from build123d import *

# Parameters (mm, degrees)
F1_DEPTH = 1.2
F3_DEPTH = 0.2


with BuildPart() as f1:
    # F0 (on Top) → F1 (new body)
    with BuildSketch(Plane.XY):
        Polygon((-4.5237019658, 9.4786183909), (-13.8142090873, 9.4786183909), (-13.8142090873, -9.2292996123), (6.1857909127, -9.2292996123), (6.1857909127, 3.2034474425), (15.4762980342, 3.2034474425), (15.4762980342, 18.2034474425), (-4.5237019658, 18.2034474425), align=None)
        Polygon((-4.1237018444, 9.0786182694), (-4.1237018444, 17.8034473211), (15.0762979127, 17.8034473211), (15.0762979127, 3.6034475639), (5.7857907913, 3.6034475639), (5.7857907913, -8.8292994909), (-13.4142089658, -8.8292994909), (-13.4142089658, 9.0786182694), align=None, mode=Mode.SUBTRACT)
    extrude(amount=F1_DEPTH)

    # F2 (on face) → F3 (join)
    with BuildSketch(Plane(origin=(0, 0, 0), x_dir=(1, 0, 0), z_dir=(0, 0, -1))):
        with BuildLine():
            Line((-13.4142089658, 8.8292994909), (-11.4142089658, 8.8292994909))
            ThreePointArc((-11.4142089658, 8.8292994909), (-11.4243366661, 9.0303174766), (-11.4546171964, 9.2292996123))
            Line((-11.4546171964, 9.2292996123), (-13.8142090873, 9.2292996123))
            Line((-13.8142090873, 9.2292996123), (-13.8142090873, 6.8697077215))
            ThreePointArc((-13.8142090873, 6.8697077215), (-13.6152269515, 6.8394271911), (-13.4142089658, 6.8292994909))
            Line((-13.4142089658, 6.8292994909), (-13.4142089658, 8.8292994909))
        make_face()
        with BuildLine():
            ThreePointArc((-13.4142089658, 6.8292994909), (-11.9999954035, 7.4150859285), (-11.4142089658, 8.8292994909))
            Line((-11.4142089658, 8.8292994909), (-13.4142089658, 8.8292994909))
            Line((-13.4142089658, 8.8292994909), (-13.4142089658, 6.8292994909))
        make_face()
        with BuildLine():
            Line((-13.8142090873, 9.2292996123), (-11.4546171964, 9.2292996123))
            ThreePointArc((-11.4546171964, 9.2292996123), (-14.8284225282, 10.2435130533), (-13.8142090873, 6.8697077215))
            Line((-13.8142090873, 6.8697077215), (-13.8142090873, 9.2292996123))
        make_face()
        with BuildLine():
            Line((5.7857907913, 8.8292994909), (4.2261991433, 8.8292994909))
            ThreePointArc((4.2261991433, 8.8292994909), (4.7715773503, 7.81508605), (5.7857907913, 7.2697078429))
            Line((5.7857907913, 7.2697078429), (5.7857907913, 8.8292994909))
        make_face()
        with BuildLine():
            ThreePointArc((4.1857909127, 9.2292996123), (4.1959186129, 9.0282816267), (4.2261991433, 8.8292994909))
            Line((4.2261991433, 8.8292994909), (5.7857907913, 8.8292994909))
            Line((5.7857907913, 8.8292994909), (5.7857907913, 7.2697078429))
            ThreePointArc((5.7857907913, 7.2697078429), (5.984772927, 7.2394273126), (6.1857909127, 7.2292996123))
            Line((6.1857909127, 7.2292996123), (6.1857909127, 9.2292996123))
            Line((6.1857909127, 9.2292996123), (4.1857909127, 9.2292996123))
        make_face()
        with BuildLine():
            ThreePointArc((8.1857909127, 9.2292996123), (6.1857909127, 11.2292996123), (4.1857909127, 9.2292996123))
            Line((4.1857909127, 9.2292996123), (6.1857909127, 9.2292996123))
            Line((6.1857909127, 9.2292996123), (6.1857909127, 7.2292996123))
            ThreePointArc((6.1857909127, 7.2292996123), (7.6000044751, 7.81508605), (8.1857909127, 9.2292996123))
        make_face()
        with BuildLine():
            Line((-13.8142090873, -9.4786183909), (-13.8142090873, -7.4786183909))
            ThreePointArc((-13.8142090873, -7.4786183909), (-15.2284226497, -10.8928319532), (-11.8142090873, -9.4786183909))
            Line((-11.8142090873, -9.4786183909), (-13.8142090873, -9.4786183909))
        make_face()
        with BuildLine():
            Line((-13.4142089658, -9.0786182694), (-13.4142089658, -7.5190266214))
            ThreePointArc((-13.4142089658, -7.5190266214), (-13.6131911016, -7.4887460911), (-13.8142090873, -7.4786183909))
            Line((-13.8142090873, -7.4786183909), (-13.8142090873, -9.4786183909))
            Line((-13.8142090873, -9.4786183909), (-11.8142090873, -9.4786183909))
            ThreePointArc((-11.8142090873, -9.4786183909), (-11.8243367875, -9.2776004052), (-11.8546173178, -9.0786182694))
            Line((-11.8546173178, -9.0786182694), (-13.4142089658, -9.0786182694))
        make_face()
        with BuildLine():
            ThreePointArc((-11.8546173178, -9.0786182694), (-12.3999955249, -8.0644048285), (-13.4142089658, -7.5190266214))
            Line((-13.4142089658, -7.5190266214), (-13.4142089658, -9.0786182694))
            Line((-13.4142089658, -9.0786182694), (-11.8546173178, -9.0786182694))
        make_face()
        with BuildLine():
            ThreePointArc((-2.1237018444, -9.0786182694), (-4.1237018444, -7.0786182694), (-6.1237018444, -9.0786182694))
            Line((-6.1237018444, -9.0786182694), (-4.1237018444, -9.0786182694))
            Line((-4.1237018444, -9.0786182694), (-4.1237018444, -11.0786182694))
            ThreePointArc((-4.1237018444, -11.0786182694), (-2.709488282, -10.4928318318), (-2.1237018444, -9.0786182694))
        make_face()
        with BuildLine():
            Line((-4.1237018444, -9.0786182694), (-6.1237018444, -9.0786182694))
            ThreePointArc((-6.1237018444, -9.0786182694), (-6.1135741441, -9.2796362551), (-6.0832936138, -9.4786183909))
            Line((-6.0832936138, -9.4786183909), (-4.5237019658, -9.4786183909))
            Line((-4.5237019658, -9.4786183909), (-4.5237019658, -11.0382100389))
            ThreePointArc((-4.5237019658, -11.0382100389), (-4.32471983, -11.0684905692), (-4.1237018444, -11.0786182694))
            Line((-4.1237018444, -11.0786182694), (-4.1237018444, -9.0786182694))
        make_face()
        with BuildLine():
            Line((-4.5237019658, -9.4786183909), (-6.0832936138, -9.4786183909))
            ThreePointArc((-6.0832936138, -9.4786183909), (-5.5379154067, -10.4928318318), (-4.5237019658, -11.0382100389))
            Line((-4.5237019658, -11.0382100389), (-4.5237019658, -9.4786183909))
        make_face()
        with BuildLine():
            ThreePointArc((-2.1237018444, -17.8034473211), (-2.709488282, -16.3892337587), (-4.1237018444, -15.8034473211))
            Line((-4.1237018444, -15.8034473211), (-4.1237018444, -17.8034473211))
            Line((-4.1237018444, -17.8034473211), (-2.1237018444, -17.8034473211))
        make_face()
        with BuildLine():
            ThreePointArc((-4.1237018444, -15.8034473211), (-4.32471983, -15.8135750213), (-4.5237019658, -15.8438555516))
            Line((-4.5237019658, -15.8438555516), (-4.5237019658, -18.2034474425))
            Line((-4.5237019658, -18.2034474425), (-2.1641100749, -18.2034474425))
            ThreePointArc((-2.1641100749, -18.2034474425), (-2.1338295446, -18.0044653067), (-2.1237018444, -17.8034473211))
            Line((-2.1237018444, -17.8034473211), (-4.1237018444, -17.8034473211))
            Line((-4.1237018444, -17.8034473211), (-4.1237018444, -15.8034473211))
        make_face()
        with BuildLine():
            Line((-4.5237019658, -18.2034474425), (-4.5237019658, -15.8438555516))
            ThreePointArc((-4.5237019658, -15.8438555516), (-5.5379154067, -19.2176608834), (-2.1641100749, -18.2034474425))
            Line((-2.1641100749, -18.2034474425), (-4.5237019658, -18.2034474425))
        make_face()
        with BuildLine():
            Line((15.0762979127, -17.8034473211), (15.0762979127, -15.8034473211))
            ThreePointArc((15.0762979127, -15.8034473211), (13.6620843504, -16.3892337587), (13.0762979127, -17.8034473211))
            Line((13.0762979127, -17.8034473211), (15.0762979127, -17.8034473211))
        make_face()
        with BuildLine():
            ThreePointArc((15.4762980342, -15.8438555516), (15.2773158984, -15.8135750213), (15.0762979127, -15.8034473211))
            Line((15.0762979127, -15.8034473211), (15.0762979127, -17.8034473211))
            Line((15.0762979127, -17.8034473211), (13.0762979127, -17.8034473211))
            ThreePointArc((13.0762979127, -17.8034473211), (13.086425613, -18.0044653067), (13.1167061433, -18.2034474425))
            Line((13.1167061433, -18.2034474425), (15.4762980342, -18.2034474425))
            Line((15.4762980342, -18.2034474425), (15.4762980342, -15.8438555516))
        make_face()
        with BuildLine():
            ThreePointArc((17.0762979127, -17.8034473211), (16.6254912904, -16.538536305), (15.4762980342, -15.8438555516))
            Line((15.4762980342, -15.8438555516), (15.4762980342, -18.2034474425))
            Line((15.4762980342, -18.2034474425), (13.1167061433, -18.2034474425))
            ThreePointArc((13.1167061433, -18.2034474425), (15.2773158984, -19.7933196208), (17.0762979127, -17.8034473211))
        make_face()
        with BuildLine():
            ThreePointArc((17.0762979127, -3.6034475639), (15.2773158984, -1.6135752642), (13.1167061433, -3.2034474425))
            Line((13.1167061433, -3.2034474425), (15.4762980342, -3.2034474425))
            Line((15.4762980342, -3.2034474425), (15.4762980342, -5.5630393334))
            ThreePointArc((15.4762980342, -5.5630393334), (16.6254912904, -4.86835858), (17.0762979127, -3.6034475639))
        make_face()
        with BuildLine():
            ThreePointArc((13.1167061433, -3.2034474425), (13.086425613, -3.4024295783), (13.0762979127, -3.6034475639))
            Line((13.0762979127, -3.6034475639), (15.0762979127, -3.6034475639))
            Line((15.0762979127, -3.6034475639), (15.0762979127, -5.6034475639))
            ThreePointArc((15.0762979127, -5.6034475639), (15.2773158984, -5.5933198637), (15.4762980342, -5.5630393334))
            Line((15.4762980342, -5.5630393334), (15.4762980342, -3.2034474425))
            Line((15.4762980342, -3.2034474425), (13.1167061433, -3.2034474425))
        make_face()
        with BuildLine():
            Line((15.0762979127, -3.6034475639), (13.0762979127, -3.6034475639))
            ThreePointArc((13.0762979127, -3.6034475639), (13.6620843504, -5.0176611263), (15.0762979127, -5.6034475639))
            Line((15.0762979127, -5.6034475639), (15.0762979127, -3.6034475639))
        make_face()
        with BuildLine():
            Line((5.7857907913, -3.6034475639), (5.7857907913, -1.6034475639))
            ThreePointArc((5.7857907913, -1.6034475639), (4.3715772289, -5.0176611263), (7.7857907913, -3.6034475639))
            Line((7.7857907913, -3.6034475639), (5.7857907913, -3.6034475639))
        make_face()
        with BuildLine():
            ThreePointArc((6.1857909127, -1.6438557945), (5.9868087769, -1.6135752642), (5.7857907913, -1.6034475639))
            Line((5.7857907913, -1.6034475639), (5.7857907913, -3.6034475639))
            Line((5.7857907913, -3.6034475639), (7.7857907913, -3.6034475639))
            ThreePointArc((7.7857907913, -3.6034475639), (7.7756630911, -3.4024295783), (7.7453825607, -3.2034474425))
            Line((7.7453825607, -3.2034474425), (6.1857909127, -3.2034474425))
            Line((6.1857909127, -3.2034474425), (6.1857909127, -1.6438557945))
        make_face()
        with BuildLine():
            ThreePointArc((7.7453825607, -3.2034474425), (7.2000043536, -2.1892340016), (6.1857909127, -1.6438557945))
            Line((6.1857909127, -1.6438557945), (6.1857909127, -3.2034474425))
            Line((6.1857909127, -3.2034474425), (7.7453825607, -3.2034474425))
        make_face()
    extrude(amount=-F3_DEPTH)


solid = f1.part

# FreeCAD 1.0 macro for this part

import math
import FreeCAD as App
import Part
import Sketcher

V = App.Vector
Q = App.Units.Quantity

doc = App.newDocument("Part")
params = doc.addObject("Spreadsheet::Sheet", "Params")
for row, (alias, value) in enumerate([
    ("sketch1_width", "20 mm"),
    ("sketch1_height", "15 mm"),
    ("sketch1_width2", "19.2 mm"),
    ("sketch1_height2", "14.2 mm"),
    ("pad1_length", "1.2 mm"),
    ("sketch2_radius", "2 mm"),
    ("pad2_length", "0.2 mm"),
], start=1):
    params.set(f"A{row}", alias)
    params.set(f"B{row}", "=" + value)
    params.setAlias(f"B{row}", alias)

body = doc.addObject("PartDesign::Body", "Body")

sketch1 = body.newObject("Sketcher::SketchObject", "Sketch")
sketch1.AttachmentSupport = (doc.getObject("XY_Plane"), [""])
sketch1.MapMode = "FlatFace"
sketch1.addGeometry([
    Part.LineSegment(V(-5, 9, 0), V(-14, 9, 0)),
    Part.LineSegment(V(-14, 9, 0), V(-14, -9, 0)),
    Part.LineSegment(V(-14, -9, 0), V(6, -9, 0)),
    Part.LineSegment(V(6, -9, 0), V(6, 3, 0)),
    Part.LineSegment(V(6, 3, 0), V(15, 3, 0)),
    Part.LineSegment(V(15, 3, 0), V(15, 18, 0)),
    Part.LineSegment(V(15, 18, 0), V(-5, 18, 0)),
    Part.LineSegment(V(-5, 18, 0), V(-5, 9, 0)),
    Part.LineSegment(V(-13, 9, 0), V(-4, 9, 0)),
    Part.LineSegment(V(-4, 9, 0), V(-4, 18, 0)),
    Part.LineSegment(V(-4, 18, 0), V(15, 18, 0)),
    Part.LineSegment(V(15, 18, 0), V(15, 4, 0)),
    Part.LineSegment(V(15, 4, 0), V(6, 4, 0)),
    Part.LineSegment(V(6, 4, 0), V(6, -9, 0)),
    Part.LineSegment(V(6, -9, 0), V(-13, -9, 0)),
    Part.LineSegment(V(-13, -9, 0), V(-13, 9, 0)),
], False)
sketch1.addConstraint([
    Sketcher.Constraint("Coincident", 0, 2, 1, 1),
    Sketcher.Constraint("Coincident", 1, 2, 2, 1),
    Sketcher.Constraint("Coincident", 2, 2, 3, 1),
    Sketcher.Constraint("Coincident", 3, 2, 4, 1),
    Sketcher.Constraint("Coincident", 4, 2, 5, 1),
    Sketcher.Constraint("Coincident", 5, 2, 6, 1),
    Sketcher.Constraint("Coincident", 6, 2, 7, 1),
    Sketcher.Constraint("Coincident", 7, 2, 0, 1),
    Sketcher.Constraint("Coincident", 8, 2, 9, 1),
    Sketcher.Constraint("Coincident", 9, 2, 10, 1),
    Sketcher.Constraint("Coincident", 10, 2, 11, 1),
    Sketcher.Constraint("Coincident", 11, 2, 12, 1),
    Sketcher.Constraint("Coincident", 12, 2, 13, 1),
    Sketcher.Constraint("Coincident", 13, 2, 14, 1),
    Sketcher.Constraint("Coincident", 14, 2, 15, 1),
    Sketcher.Constraint("Coincident", 15, 2, 8, 1),
    Sketcher.Constraint("Horizontal", 0),
    Sketcher.Constraint("Vertical", 1),
    Sketcher.Constraint("Horizontal", 2),
    Sketcher.Constraint("Vertical", 3),
    Sketcher.Constraint("Horizontal", 4),
    Sketcher.Constraint("Vertical", 5),
    Sketcher.Constraint("Horizontal", 6),
    Sketcher.Constraint("Vertical", 7),
    Sketcher.Constraint("Horizontal", 8),
    Sketcher.Constraint("Vertical", 9),
    Sketcher.Constraint("Horizontal", 10),
    Sketcher.Constraint("Vertical", 11),
    Sketcher.Constraint("Horizontal", 12),
    Sketcher.Constraint("Vertical", 13),
    Sketcher.Constraint("Horizontal", 14),
    Sketcher.Constraint("Vertical", 15),
    Sketcher.Constraint("Equal", 0, 4),
    Sketcher.Constraint("Equal", 4, 8),
    Sketcher.Constraint("Equal", 8, 12),
    Sketcher.Constraint("Equal", 7, 9),
    Sketcher.Constraint("Equal", 3, 13),
    Sketcher.Constraint("DistanceX", 2, 1, 2, 2, Q("20 mm")),
    Sketcher.Constraint("DistanceY", 5, 1, 5, 2, Q("15 mm")),
    Sketcher.Constraint("DistanceX", 10, 1, 10, 2, Q("19.2 mm")),
    Sketcher.Constraint("DistanceY", 11, 2, 11, 1, Q("14.2 mm")),
    Sketcher.Constraint("DistanceX", 7, 2, 8, 2, Q("0.4 mm")),
    Sketcher.Constraint("DistanceY", 8, 2, 7, 2, Q("0.4 mm")),
    Sketcher.Constraint("DistanceY", 1, 2, 1, 1, Q("18.707918 mm")),
    Sketcher.Constraint("DistanceY", 7, 2, 7, 1, Q("8.724829 mm")),
    Sketcher.Constraint("DistanceY", 1, 2, -1, 1, Q("9.2293 mm")),
    Sketcher.Constraint("DistanceX", -1, 1, 4, 2, Q("15.476298 mm")),
    Sketcher.Constraint("DistanceX", 0, 2, 0, 1, Q("9.290507 mm")),
])
sketch1.setExpression("Constraints[37]", "Params.sketch1_width")
sketch1.setExpression("Constraints[38]", "Params.sketch1_height")
sketch1.setExpression("Constraints[39]", "Params.sketch1_width2")
sketch1.setExpression("Constraints[40]", "Params.sketch1_height2")
pad1 = body.newObject("PartDesign::Pad", "Pad")
pad1.Profile = sketch1
pad1.setExpression("Length", "Params.pad1_length")

sketch2 = body.newObject("Sketcher::SketchObject", "Sketch001")
sketch2.AttachmentSupport = (doc.getObject("XY_Plane"), [""])
sketch2.MapMode = "FlatFace"
sketch2.addGeometry([
    Part.ArcOfCircle(Part.Circle(V(-13.41, -8.83, 0), V(0, 0, 1), 2), math.radians(-11.54), math.radians(0)),
    Part.ArcOfCircle(Part.Circle(V(-13.41, -8.83, 0), V(0, 0, 1), 2), math.radians(102), math.radians(348)),
    Part.ArcOfCircle(Part.Circle(V(-13.41, -8.83, 0), V(0, 0, 1), 2), math.radians(90), math.radians(101.54)),
    Part.ArcOfCircle(Part.Circle(V(-13.41, -8.83, 0), V(0, 0, 1), 2), math.radians(0), math.radians(90)),
    Part.ArcOfCircle(Part.Circle(V(6.19, -9.23, 0), V(0, 0, 1), 2), math.radians(102), math.radians(168)),
    Part.ArcOfCircle(Part.Circle(V(6.19, -9.23, 0), V(0, 0, 1), 2), math.radians(90), math.radians(101.54)),
    Part.ArcOfCircle(Part.Circle(V(6.19, -9.23, 0), V(0, 0, 1), 2), math.radians(0), math.radians(90)),
    Part.ArcOfCircle(Part.Circle(V(6.19, -9.23, 0), V(0, 0, 1), 2), math.radians(180), math.radians(360)),
    Part.ArcOfCircle(Part.Circle(V(6.19, -9.23, 0), V(0, 0, 1), 2), math.radians(168.46), math.radians(180)),
    Part.ArcOfCircle(Part.Circle(V(-13.81, 9.48, 0), V(0, 0, 1), 2), math.radians(0), math.radians(270)),
    Part.ArcOfCircle(Part.Circle(V(-13.81, 9.48, 0), V(0, 0, 1), 2), math.radians(-11.54), math.radians(0)),
    Part.ArcOfCircle(Part.Circle(V(-13.81, 9.48, 0), V(0, 0, 1), 2), math.radians(-78), math.radians(-12)),
    Part.ArcOfCircle(Part.Circle(V(-13.81, 9.48, 0), V(0, 0, 1), 2), math.radians(-90), math.radians(-78.46)),
    Part.ArcOfCircle(Part.Circle(V(-4.12, 9.08, 0), V(0, 0, 1), 2), math.radians(180), math.radians(360)),
    Part.ArcOfCircle(Part.Circle(V(-4.12, 9.08, 0), V(0, 0, 1), 2), math.radians(168.46), math.radians(180)),
    Part.ArcOfCircle(Part.Circle(V(-4.12, 9.08, 0), V(0, 0, 1), 2), math.radians(102), math.radians(168)),
    Part.ArcOfCircle(Part.Circle(V(-4.12, 9.08, 0), V(0, 0, 1), 2), math.radians(90), math.radians(101.54)),
    Part.ArcOfCircle(Part.Circle(V(-4.12, 9.08, 0), V(0, 0, 1), 2), math.radians(0), math.radians(90)),
    Part.ArcOfCircle(Part.Circle(V(-4.12, 17.8, 0), V(0, 0, 1), 2), math.radians(-90), math.radians(0)),
    Part.ArcOfCircle(Part.Circle(V(-4.12, 17.8, 0), V(0, 0, 1), 2), math.radians(-101.54), math.radians(-90)),
    Part.ArcOfCircle(Part.Circle(V(-4.12, 17.8, 0), V(0, 0, 1), 2), math.radians(12), math.radians(258)),
    Part.ArcOfCircle(Part.Circle(V(-4.12, 17.8, 0), V(0, 0, 1), 2), math.radians(0), math.radians(11.54)),
    Part.ArcOfCircle(Part.Circle(V(15.08, 17.8, 0), V(0, 0, 1), 2), math.radians(180), math.radians(270)),
    Part.ArcOfCircle(Part.Circle(V(15.08, 17.8, 0), V(0, 0, 1), 2), math.radians(168.46), math.radians(180)),
    Part.ArcOfCircle(Part.Circle(V(15.08, 17.8, 0), V(0, 0, 1), 2), math.radians(0), math.radians(168)),
    Part.ArcOfCircle(Part.Circle(V(15.08, 17.8, 0), V(0, 0, 1), 2), math.radians(-78), math.radians(0)),
    Part.ArcOfCircle(Part.Circle(V(15.08, 17.8, 0), V(0, 0, 1), 2), math.radians(-90), math.radians(-78.46)),
    Part.ArcOfCircle(Part.Circle(V(15.08, 3.6, 0), V(0, 0, 1), 2), math.radians(-168), math.radians(0)),
    Part.ArcOfCircle(Part.Circle(V(15.08, 3.6, 0), V(0, 0, 1), 2), math.radians(-180), math.radians(-168.46)),
    Part.ArcOfCircle(Part.Circle(V(15.08, 3.6, 0), V(0, 0, 1), 2), math.radians(90), math.radians(180)),
    Part.ArcOfCircle(Part.Circle(V(15.08, 3.6, 0), V(0, 0, 1), 2), math.radians(78.46), math.radians(90)),
    Part.ArcOfCircle(Part.Circle(V(15.08, 3.6, 0), V(0, 0, 1), 2), math.radians(0), math.radians(78)),
    Part.ArcOfCircle(Part.Circle(V(5.79, 3.6, 0), V(0, 0, 1), 2), math.radians(0), math.radians(270)),
    Part.ArcOfCircle(Part.Circle(V(5.79, 3.6, 0), V(0, 0, 1), 2), math.radians(-11.54), math.radians(0)),
    Part.ArcOfCircle(Part.Circle(V(5.79, 3.6, 0), V(0, 0, 1), 2), math.radians(-78), math.radians(-12)),
    Part.ArcOfCircle(Part.Circle(V(5.79, 3.6, 0), V(0, 0, 1), 2), math.radians(-90), math.radians(-78.46)),
], False)
sketch2.addConstraint([
    Sketcher.Constraint("Tangent", 0, 1, 1, 2),
    Sketcher.Constraint("Tangent", 1, 1, 2, 2),
    Sketcher.Constraint("Tangent", 2, 1, 3, 2),
    Sketcher.Constraint("Tangent", 3, 1, 0, 2),
    Sketcher.Constraint("Tangent", 4, 1, 5, 2),
    Sketcher.Constraint("Tangent", 5, 1, 6, 2),
    Sketcher.Constraint("Tangent", 6, 1, 7, 2),
    Sketcher.Constraint("Tangent", 7, 1, 8, 2),
    Sketcher.Constraint("Tangent", 8, 1, 4, 2),
    Sketcher.Constraint("Tangent", 9, 1, 10, 2),
    Sketcher.Constraint("Tangent", 10, 1, 11, 2),
    Sketcher.Constraint("Tangent", 11, 1, 12, 2),
    Sketcher.Constraint("Tangent", 12, 1, 9, 2),
    Sketcher.Constraint("Tangent", 13, 1, 14, 2),
    Sketcher.Constraint("Tangent", 14, 1, 15, 2),
    Sketcher.Constraint("Tangent", 15, 1, 16, 2),
    Sketcher.Constraint("Tangent", 16, 1, 17, 2),
    Sketcher.Constraint("Tangent", 17, 1, 13, 2),
    Sketcher.Constraint("Tangent", 18, 1, 19, 2),
    Sketcher.Constraint("Tangent", 19, 1, 20, 2),
    Sketcher.Constraint("Tangent", 20, 1, 21, 2),
    Sketcher.Constraint("Tangent", 21, 1, 18, 2),
    Sketcher.Constraint("Tangent", 22, 1, 23, 2),
    Sketcher.Constraint("Tangent", 23, 1, 24, 2),
    Sketcher.Constraint("Tangent", 24, 1, 25, 2),
    Sketcher.Constraint("Tangent", 25, 1, 26, 2),
    Sketcher.Constraint("Tangent", 26, 1, 22, 2),
    Sketcher.Constraint("Tangent", 27, 1, 28, 2),
    Sketcher.Constraint("Tangent", 28, 1, 29, 2),
    Sketcher.Constraint("Tangent", 29, 1, 30, 2),
    Sketcher.Constraint("Tangent", 30, 1, 31, 2),
    Sketcher.Constraint("Tangent", 31, 1, 27, 2),
    Sketcher.Constraint("Tangent", 32, 1, 33, 2),
    Sketcher.Constraint("Tangent", 33, 1, 34, 2),
    Sketcher.Constraint("Tangent", 34, 1, 35, 2),
    Sketcher.Constraint("Tangent", 35, 1, 32, 2),
    Sketcher.Constraint("Coincident", 6, 3, 4, 3),
    Sketcher.Constraint("Coincident", 15, 3, 13, 3),
    Sketcher.Constraint("Coincident", 24, 3, 22, 3),
    Sketcher.Constraint("Coincident", 29, 3, 27, 3),
    Sketcher.Constraint("Equal", 0, 1),
    Sketcher.Constraint("Equal", 3, 4),
    Sketcher.Constraint("Equal", 8, 9),
    Sketcher.Constraint("Equal", 9, 10),
    Sketcher.Constraint("Equal", 12, 13),
    Sketcher.Constraint("Equal", 17, 18),
    Sketcher.Constraint("Equal", 18, 19),
    Sketcher.Constraint("Equal", 21, 22),
    Sketcher.Constraint("Equal", 26, 27),
    Sketcher.Constraint("Equal", 31, 32),
    Sketcher.Constraint("Equal", 32, 33),
    Sketcher.Constraint("Horizontal", 21, 3, 22, 3),
    Sketcher.Constraint("Horizontal", 31, 3, 32, 3),
    Sketcher.Constraint("Horizontal", 8, 3, 0, 1),
    Sketcher.Constraint("Horizontal", 2, 3, 3, 1),
    Sketcher.Constraint("Horizontal", 0, 1, 6, 1),
    Sketcher.Constraint("Horizontal", 6, 1, 7, 1),
    Sketcher.Constraint("Horizontal", 3, 1, 8, 1),
    Sketcher.Constraint("Horizontal", 12, 3, 9, 1),
    Sketcher.Constraint("Horizontal", 17, 3, 10, 1),
    Sketcher.Constraint("Horizontal", 10, 1, 13, 1),
    Sketcher.Constraint("Horizontal", 9, 1, 14, 1),
    Sketcher.Constraint("Horizontal", 13, 1, 17, 1),
    Sketcher.Constraint("Horizontal", 26, 3, 21, 1),
    Sketcher.Constraint("Horizontal", 21, 1, 22, 1),
    Sketcher.Constraint("Horizontal", 20, 1, 23, 1),
    Sketcher.Constraint("Horizontal", 22, 1, 24, 1),
    Sketcher.Constraint("Horizontal", 19, 1, 25, 1),
    Sketcher.Constraint("Horizontal", 35, 3, 28, 1),
    Sketcher.Constraint("Horizontal", 28, 1, 31, 1),
    Sketcher.Constraint("Horizontal", 31, 1, 32, 1),
    Sketcher.Constraint("Horizontal", 27, 1, 33, 1),
    Sketcher.Constraint("Vertical", 17, 3, 18, 3),
    Sketcher.Constraint("Vertical", 26, 3, 27, 3),
    Sketcher.Constraint("Vertical", 12, 3, 1, 1),
    Sketcher.Constraint("Vertical", 3, 3, 2, 1),
    Sketcher.Constraint("Vertical", 35, 3, 4, 1),
    Sketcher.Constraint("Vertical", 8, 3, 5, 1),
    Sketcher.Constraint("Vertical", 2, 1, 11, 1),
    Sketcher.Constraint("Vertical", 1, 1, 12, 1),
    Sketcher.Constraint("Vertical", 21, 3, 16, 1),
    Sketcher.Constraint("Vertical", 16, 1, 18, 1),
    Sketcher.Constraint("Vertical", 15, 1, 19, 1),
    Sketcher.Constraint("Vertical", 31, 3, 26, 1),
    Sketcher.Constraint("Vertical", 23, 1, 27, 1),
    Sketcher.Constraint("Vertical", 26, 1, 29, 1),
    Sketcher.Constraint("Vertical", 25, 1, 30, 1),
    Sketcher.Constraint("Vertical", 5, 1, 34, 1),
    Sketcher.Constraint("Vertical", 4, 1, 35, 1),
    Sketcher.Constraint("Radius", 0, Q("2 mm")),
    Sketcher.Constraint("DistanceY", 0, 3, -1, 1, Q("8.829299 mm")),
    Sketcher.Constraint("DistanceY", 4, 3, -1, 1, Q("9.2293 mm")),
    Sketcher.Constraint("DistanceX", 13, 3, -1, 1, Q("4.123702 mm")),
    Sketcher.Constraint("DistanceX", -1, 1, 8, 1, Q("4.226199 mm")),
    Sketcher.Constraint("DistanceX", 15, 1, -1, 1, Q("4.523702 mm")),
    Sketcher.Constraint("DistanceX", -1, 1, 25, 1, Q("15.476298 mm")),
    Sketcher.Constraint("DistanceX", 0, 3, -1, 1, Q("13.414209 mm")),
    Sketcher.Constraint("DistanceX", 9, 3, -1, 1, Q("13.814209 mm")),
    Sketcher.Constraint("DistanceY", -1, 1, 9, 3, Q("9.478618 mm")),
    Sketcher.Constraint("DistanceY", -1, 1, 13, 3, Q("9.078618 mm")),
    Sketcher.Constraint("DistanceX", -1, 1, 32, 3, Q("5.785791 mm")),
    Sketcher.Constraint("DistanceX", 20, 1, -1, 1, Q("2.16411 mm")),
    Sketcher.Constraint("DistanceY", -1, 1, 30, 1, Q("5.563039 mm")),
    Sketcher.Constraint("DistanceY", -1, 1, 18, 3, Q("17.803447 mm")),
])
sketch2.setExpression("Constraints[89]", "Params.sketch2_radius")
pad2 = body.newObject("PartDesign::Pad", "Pad001")
pad2.Profile = sketch2
pad2.setExpression("Length", "Params.pad2_length")

doc.recompute()
